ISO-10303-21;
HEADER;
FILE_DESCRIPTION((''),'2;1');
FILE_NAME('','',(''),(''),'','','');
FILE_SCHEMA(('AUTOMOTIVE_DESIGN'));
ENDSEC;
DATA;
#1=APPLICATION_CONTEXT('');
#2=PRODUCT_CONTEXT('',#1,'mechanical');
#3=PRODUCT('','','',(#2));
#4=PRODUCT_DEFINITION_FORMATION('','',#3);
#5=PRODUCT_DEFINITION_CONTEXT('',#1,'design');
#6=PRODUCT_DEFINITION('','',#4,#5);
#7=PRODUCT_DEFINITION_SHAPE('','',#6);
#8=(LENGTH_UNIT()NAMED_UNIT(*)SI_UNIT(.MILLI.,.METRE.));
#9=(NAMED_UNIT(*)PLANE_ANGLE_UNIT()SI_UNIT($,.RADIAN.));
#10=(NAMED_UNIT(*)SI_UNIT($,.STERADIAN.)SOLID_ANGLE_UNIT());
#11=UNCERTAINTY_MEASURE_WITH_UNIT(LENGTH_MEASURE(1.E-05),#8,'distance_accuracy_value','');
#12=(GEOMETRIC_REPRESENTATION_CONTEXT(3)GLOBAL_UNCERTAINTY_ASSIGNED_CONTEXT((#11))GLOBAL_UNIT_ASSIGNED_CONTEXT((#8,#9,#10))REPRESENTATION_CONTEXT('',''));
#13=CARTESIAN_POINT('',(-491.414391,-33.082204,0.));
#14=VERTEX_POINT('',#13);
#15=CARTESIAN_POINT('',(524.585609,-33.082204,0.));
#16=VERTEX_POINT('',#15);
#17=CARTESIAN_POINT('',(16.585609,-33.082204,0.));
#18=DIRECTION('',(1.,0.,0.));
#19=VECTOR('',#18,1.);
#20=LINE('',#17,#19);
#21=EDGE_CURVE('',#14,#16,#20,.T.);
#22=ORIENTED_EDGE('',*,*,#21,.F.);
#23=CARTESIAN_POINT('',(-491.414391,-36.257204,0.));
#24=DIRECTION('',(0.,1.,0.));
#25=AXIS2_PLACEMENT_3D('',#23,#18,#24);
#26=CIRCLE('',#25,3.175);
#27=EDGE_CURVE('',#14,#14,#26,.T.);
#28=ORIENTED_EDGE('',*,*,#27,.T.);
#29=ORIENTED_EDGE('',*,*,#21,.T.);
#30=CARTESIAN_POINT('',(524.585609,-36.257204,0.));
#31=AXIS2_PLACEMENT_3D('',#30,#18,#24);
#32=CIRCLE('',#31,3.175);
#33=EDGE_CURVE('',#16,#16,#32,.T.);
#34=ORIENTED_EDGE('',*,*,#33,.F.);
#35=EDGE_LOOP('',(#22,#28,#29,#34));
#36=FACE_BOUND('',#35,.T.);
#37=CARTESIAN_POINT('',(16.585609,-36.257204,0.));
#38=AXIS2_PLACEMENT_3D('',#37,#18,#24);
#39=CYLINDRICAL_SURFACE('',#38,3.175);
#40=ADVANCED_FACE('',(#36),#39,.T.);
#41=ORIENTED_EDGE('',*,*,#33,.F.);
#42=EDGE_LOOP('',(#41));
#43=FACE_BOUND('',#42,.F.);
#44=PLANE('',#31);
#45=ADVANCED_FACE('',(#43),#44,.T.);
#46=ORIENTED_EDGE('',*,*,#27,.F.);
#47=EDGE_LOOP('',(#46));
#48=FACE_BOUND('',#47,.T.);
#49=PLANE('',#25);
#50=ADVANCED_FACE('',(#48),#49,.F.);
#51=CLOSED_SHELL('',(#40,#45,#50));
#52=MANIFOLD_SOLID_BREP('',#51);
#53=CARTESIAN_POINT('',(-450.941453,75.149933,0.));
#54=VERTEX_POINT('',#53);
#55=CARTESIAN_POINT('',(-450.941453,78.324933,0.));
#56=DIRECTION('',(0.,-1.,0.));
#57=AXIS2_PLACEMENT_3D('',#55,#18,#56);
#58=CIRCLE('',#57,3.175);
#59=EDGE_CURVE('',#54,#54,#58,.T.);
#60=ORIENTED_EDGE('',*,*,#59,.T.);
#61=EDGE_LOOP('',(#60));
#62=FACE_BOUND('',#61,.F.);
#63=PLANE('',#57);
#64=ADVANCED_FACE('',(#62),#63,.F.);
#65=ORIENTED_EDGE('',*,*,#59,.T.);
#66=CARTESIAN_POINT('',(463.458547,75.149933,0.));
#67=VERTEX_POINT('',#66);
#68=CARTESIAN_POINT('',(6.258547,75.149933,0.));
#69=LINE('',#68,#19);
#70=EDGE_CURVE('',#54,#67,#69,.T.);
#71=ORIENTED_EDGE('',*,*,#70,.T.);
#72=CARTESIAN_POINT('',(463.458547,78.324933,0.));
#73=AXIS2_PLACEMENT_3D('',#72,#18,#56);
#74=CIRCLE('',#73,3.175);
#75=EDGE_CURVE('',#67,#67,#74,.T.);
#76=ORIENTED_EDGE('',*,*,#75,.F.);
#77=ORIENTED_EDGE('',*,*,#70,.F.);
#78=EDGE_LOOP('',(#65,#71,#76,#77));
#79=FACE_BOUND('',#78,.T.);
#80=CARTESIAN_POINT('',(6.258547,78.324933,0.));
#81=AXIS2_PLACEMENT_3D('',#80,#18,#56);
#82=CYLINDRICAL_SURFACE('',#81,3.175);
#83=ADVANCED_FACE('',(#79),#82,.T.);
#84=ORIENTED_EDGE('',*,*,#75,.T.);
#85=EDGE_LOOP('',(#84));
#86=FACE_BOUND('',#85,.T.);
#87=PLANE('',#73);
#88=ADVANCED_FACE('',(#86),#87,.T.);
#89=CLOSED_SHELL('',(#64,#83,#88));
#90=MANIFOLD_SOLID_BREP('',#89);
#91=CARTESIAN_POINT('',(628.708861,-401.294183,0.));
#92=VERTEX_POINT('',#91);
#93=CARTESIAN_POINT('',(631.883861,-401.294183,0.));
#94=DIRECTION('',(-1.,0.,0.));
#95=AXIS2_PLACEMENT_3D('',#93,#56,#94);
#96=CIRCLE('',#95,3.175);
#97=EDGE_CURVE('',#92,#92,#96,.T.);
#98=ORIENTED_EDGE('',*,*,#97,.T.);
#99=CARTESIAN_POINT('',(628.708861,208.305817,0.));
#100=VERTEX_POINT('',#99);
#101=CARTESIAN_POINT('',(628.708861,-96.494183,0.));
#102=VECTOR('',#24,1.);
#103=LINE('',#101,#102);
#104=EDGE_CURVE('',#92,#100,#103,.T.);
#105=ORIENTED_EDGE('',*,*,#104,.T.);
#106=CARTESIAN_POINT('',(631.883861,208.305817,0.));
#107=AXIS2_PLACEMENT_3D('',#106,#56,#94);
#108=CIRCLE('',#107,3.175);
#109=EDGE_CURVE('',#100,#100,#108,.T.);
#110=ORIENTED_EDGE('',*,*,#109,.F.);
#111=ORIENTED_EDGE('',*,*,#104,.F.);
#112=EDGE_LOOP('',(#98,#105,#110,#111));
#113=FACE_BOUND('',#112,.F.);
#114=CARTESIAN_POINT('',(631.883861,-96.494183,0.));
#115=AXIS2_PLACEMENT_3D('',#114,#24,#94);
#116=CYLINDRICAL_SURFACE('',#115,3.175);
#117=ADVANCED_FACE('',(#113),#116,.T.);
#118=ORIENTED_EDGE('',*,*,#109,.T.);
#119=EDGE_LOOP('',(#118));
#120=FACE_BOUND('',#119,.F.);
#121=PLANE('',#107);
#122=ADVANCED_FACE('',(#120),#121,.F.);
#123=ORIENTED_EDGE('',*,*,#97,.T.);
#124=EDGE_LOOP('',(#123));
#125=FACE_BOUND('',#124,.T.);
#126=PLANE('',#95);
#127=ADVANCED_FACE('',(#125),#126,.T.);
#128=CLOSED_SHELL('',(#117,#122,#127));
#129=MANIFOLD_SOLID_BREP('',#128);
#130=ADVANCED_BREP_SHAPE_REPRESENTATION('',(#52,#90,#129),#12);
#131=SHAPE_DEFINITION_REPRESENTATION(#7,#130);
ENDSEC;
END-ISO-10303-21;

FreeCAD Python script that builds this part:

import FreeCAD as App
import Part
import Sketcher

V = App.Vector
Q = App.Units.Quantity


def add_polygon(sketch, points):
    """Adds a closed chain of lines whose ends are joined by coincident constraints."""
    first, n = sketch.GeometryCount, len(points)
    for a, b in zip(points, points[1:] + points[:1]):
        sketch.addGeometry(Part.LineSegment(App.Vector(*a, 0), App.Vector(*b, 0)), False)
    for i in range(n):
        sketch.addConstraint(Sketcher.Constraint("Coincident", first + i, 2, first + (i + 1) % n, 1))

doc = App.newDocument("Part")
body = doc.addObject("PartDesign::Body", "Body")

sketch1 = doc.addObject("Sketcher::SketchObject", "Sketch")
body.addObject(sketch1)
sketch1.AttachmentSupport = (doc.XY_Plane, [""])
sketch1.MapMode = "FlatFace"
add_polygon(sketch1, [(-491.414391, -33.082204), (-491.414391, -36.257204), (524.585609, -36.257204), (524.585609, -33.082204)])
sketch1.addGeometry(Part.LineSegment(V(-491.414391, -36.257204, 0), V(524.585609, -36.257204, 0)), True)
sketch1.addConstraint(Sketcher.Constraint("Vertical", 0))
sketch1.addConstraint(Sketcher.Constraint("Horizontal", 1))
sketch1.addConstraint(Sketcher.Constraint("Vertical", 2))
sketch1.addConstraint(Sketcher.Constraint("Horizontal", 3))
sketch1.addConstraint(Sketcher.Constraint("Horizontal", 4))
sketch1.addConstraint(Sketcher.Constraint("Coincident", 4, 1, 0, 2))
sketch1.addConstraint(Sketcher.Constraint("Vertical", 2, 2, 4, 2))
sketch1.addConstraint(Sketcher.Constraint("DistanceX", 1, 1, 1, 2, Q("40 in")))
sketch1.addConstraint(Sketcher.Constraint("DistanceY", 0, 2, 0, 1, Q("0.125 in")))
sketch1.addConstraint(Sketcher.Constraint("DistanceX", 0, 2, -1, 1, 491.414391))
sketch1.addConstraint(Sketcher.Constraint("DistanceY", 0, 2, -1, 1, 36.257204))
revolution = doc.addObject("PartDesign::Revolution", "Revolution")
body.addObject(revolution)
revolution.Profile = sketch1
revolution.ReferenceAxis = (sketch1, ["Axis0"])
revolution.Angle = 360
body2 = doc.addObject("PartDesign::Body", "Body001")

sketch2 = doc.addObject("Sketcher::SketchObject", "Sketch001")
body2.addObject(sketch2)
sketch2.AttachmentSupport = (doc.getObject("XY_Plane001"), [""])
sketch2.MapMode = "FlatFace"
add_polygon(sketch2, [(-450.941453, 78.324933), (-450.941453, 75.149933), (463.458547, 75.149933), (463.458547, 78.324933)])
sketch2.addGeometry(Part.LineSegment(V(-450.941453, 78.324933, 0), V(463.458547, 78.324933, 0)), True)
sketch2.addConstraint(Sketcher.Constraint("Vertical", 0))
sketch2.addConstraint(Sketcher.Constraint("Horizontal", 1))
sketch2.addConstraint(Sketcher.Constraint("Vertical", 2))
sketch2.addConstraint(Sketcher.Constraint("Horizontal", 3))
sketch2.addConstraint(Sketcher.Constraint("Horizontal", 4))
sketch2.addConstraint(Sketcher.Constraint("Coincident", 4, 1, 3, 2))
sketch2.addConstraint(Sketcher.Constraint("Vertical", 1, 2, 4, 2))
sketch2.addConstraint(Sketcher.Constraint("DistanceX", 1, 1, 1, 2, Q("36 in")))
sketch2.addConstraint(Sketcher.Constraint("DistanceY", 0, 2, 0, 1, Q("0.125 in")))
sketch2.addConstraint(Sketcher.Constraint("DistanceX", 0, 2, -1, 1, 450.941453))
sketch2.addConstraint(Sketcher.Constraint("DistanceY", -1, 1, 0, 2, 75.149933))
revolution2 = doc.addObject("PartDesign::Revolution", "Revolution001")
body2.addObject(revolution2)
revolution2.Profile = sketch2
revolution2.ReferenceAxis = (sketch2, ["Axis0"])
revolution2.Angle = 360
body3 = doc.addObject("PartDesign::Body", "Body002")

sketch3 = doc.addObject("Sketcher::SketchObject", "Sketch002")
body3.addObject(sketch3)
sketch3.AttachmentSupport = (doc.getObject("XY_Plane002"), [""])
sketch3.MapMode = "FlatFace"
add_polygon(sketch3, [(-306.447764, 137.376046), (-306.447764, 134.201046), (506.352236, 134.201046), (506.352236, 137.376046)])
sketch3.addGeometry(Part.LineSegment(V(-306.447764, 137.376046, 0), V(506.352236, 137.376046, 0)), True)
sketch3.addConstraint(Sketcher.Constraint("Vertical", 0))
sketch3.addConstraint(Sketcher.Constraint("Horizontal", 1))
sketch3.addConstraint(Sketcher.Constraint("Vertical", 2))
sketch3.addConstraint(Sketcher.Constraint("Horizontal", 3))
sketch3.addConstraint(Sketcher.Constraint("Horizontal", 4))
sketch3.addConstraint(Sketcher.Constraint("Coincident", 4, 1, 3, 2))
sketch3.addConstraint(Sketcher.Constraint("Vertical", 1, 2, 4, 2))
sketch3.addConstraint(Sketcher.Constraint("DistanceX", 1, 1, 1, 2, Q("32 in")))
sketch3.addConstraint(Sketcher.Constraint("DistanceY", 0, 2, 0, 1, Q("0.125 in")))
sketch3.addConstraint(Sketcher.Constraint("DistanceX", 0, 2, -1, 1, 306.447764))
sketch3.addConstraint(Sketcher.Constraint("DistanceY", -1, 1, 0, 2, 134.201046))
revolution3 = doc.addObject("PartDesign::Revolution", "Revolution002")
body3.addObject(revolution3)
revolution3.Profile = sketch3
revolution3.ReferenceAxis = (sketch3, ["Axis0"])
revolution3.Angle = 360
body4 = doc.addObject("PartDesign::Body", "Body003")

sketch4 = doc.addObject("Sketcher::SketchObject", "Sketch003")
body4.addObject(sketch4)
sketch4.AttachmentSupport = (doc.getObject("XY_Plane003"), [""])
sketch4.MapMode = "FlatFace"
add_polygon(sketch4, [(-256.942245, 178.489474), (-256.942245, 175.314474), (505.057755, 175.314474), (505.057755, 178.489474)])
sketch4.addGeometry(Part.LineSegment(V(-256.942245, 178.489474, 0), V(505.057755, 178.489474, 0)), True)
sketch4.addConstraint(Sketcher.Constraint("Vertical", 0))
sketch4.addConstraint(Sketcher.Constraint("Horizontal", 1))
sketch4.addConstraint(Sketcher.Constraint("Vertical", 2))
sketch4.addConstraint(Sketcher.Constraint("Horizontal", 3))
sketch4.addConstraint(Sketcher.Constraint("Horizontal", 4))
sketch4.addConstraint(Sketcher.Constraint("Coincident", 4, 1, 3, 2))
sketch4.addConstraint(Sketcher.Constraint("Vertical", 1, 2, 4, 2))
sketch4.addConstraint(Sketcher.Constraint("DistanceX", 1, 1, 1, 2, Q("30 in")))
sketch4.addConstraint(Sketcher.Constraint("DistanceY", 0, 2, 0, 1, Q("0.125 in")))
sketch4.addConstraint(Sketcher.Constraint("DistanceX", 0, 2, -1, 1, 256.942245))
sketch4.addConstraint(Sketcher.Constraint("DistanceY", -1, 1, 0, 2, 175.314474))
revolution4 = doc.addObject("PartDesign::Revolution", "Revolution003")
body4.addObject(revolution4)
revolution4.Profile = sketch4
revolution4.ReferenceAxis = (sketch4, ["Axis0"])
revolution4.Angle = 360
body5 = doc.addObject("PartDesign::Body", "Body004")

sketch5 = doc.addObject("Sketcher::SketchObject", "Sketch004")
body5.addObject(sketch5)
sketch5.AttachmentSupport = (doc.getObject("XY_Plane004"), [""])
sketch5.MapMode = "FlatFace"
add_polygon(sketch5, [(628.708861, 208.305817), (628.708861, -401.294183), (631.883861, -401.294183), (631.883861, 208.305817)])
sketch5.addGeometry(Part.LineSegment(V(631.883861, 208.305817, 0), V(631.883861, -401.294183, 0)), True)
sketch5.addConstraint(Sketcher.Constraint("Vertical", 0))
sketch5.addConstraint(Sketcher.Constraint("Horizontal", 1))
sketch5.addConstraint(Sketcher.Constraint("Vertical", 2))
sketch5.addConstraint(Sketcher.Constraint("Horizontal", 3))
sketch5.addConstraint(Sketcher.Constraint("Vertical", 4))
sketch5.addConstraint(Sketcher.Constraint("Coincident", 4, 1, 2, 2))
sketch5.addConstraint(Sketcher.Constraint("Horizontal", 0, 2, 4, 2))
sketch5.addConstraint(Sketcher.Constraint("DistanceY", 0, 2, 0, 1, Q("24 in")))
sketch5.addConstraint(Sketcher.Constraint("DistanceX", 1, 1, 1, 2, Q("0.125 in")))
sketch5.addConstraint(Sketcher.Constraint("DistanceX", -1, 1, 0, 2, 628.708861))
sketch5.addConstraint(Sketcher.Constraint("DistanceY", 0, 2, -1, 1, 401.294183))
revolution5 = doc.addObject("PartDesign::Revolution", "Revolution004")
body5.addObject(revolution5)
revolution5.Profile = sketch5
revolution5.ReferenceAxis = (sketch5, ["Axis0"])
revolution5.Angle = 360
body6 = doc.addObject("PartDesign::Body", "Body005")

sketch6 = doc.addObject("Sketcher::SketchObject", "Sketch005")
body6.addObject(sketch6)
sketch6.AttachmentSupport = (doc.getObject("XY_Plane005"), [""])
sketch6.MapMode = "FlatFace"
add_polygon(sketch6, [(710.220565, 388.581732), (710.220565, -525.818268), (713.395565, -525.818268), (713.395565, 388.581732)])
sketch6.addGeometry(Part.LineSegment(V(713.395565, 388.581732, 0), V(713.395565, -525.818268, 0)), True)
sketch6.addConstraint(Sketcher.Constraint("Vertical", 0))
sketch6.addConstraint(Sketcher.Constraint("Horizontal", 1))
sketch6.addConstraint(Sketcher.Constraint("Vertical", 2))
sketch6.addConstraint(Sketcher.Constraint("Horizontal", 3))
sketch6.addConstraint(Sketcher.Constraint("Vertical", 4))
sketch6.addConstraint(Sketcher.Constraint("Coincident", 4, 1, 2, 2))
sketch6.addConstraint(Sketcher.Constraint("Horizontal", 0, 2, 4, 2))
sketch6.addConstraint(Sketcher.Constraint("DistanceY", 0, 2, 0, 1, Q("36 in")))
sketch6.addConstraint(Sketcher.Constraint("DistanceX", 1, 1, 1, 2, Q("0.125 in")))
sketch6.addConstraint(Sketcher.Constraint("DistanceY", 0, 2, -1, 1, 525.818268))
sketch6.addConstraint(Sketcher.Constraint("DistanceX", -1, 1, 0, 2, 710.220565))
revolution6 = doc.addObject("PartDesign::Revolution", "Revolution005")
body6.addObject(revolution6)
revolution6.Profile = sketch6
revolution6.ReferenceAxis = (sketch6, ["Axis0"])
revolution6.Angle = 360
body3.Visibility = False
body4.Visibility = False
body6.Visibility = False

doc.recompute()
